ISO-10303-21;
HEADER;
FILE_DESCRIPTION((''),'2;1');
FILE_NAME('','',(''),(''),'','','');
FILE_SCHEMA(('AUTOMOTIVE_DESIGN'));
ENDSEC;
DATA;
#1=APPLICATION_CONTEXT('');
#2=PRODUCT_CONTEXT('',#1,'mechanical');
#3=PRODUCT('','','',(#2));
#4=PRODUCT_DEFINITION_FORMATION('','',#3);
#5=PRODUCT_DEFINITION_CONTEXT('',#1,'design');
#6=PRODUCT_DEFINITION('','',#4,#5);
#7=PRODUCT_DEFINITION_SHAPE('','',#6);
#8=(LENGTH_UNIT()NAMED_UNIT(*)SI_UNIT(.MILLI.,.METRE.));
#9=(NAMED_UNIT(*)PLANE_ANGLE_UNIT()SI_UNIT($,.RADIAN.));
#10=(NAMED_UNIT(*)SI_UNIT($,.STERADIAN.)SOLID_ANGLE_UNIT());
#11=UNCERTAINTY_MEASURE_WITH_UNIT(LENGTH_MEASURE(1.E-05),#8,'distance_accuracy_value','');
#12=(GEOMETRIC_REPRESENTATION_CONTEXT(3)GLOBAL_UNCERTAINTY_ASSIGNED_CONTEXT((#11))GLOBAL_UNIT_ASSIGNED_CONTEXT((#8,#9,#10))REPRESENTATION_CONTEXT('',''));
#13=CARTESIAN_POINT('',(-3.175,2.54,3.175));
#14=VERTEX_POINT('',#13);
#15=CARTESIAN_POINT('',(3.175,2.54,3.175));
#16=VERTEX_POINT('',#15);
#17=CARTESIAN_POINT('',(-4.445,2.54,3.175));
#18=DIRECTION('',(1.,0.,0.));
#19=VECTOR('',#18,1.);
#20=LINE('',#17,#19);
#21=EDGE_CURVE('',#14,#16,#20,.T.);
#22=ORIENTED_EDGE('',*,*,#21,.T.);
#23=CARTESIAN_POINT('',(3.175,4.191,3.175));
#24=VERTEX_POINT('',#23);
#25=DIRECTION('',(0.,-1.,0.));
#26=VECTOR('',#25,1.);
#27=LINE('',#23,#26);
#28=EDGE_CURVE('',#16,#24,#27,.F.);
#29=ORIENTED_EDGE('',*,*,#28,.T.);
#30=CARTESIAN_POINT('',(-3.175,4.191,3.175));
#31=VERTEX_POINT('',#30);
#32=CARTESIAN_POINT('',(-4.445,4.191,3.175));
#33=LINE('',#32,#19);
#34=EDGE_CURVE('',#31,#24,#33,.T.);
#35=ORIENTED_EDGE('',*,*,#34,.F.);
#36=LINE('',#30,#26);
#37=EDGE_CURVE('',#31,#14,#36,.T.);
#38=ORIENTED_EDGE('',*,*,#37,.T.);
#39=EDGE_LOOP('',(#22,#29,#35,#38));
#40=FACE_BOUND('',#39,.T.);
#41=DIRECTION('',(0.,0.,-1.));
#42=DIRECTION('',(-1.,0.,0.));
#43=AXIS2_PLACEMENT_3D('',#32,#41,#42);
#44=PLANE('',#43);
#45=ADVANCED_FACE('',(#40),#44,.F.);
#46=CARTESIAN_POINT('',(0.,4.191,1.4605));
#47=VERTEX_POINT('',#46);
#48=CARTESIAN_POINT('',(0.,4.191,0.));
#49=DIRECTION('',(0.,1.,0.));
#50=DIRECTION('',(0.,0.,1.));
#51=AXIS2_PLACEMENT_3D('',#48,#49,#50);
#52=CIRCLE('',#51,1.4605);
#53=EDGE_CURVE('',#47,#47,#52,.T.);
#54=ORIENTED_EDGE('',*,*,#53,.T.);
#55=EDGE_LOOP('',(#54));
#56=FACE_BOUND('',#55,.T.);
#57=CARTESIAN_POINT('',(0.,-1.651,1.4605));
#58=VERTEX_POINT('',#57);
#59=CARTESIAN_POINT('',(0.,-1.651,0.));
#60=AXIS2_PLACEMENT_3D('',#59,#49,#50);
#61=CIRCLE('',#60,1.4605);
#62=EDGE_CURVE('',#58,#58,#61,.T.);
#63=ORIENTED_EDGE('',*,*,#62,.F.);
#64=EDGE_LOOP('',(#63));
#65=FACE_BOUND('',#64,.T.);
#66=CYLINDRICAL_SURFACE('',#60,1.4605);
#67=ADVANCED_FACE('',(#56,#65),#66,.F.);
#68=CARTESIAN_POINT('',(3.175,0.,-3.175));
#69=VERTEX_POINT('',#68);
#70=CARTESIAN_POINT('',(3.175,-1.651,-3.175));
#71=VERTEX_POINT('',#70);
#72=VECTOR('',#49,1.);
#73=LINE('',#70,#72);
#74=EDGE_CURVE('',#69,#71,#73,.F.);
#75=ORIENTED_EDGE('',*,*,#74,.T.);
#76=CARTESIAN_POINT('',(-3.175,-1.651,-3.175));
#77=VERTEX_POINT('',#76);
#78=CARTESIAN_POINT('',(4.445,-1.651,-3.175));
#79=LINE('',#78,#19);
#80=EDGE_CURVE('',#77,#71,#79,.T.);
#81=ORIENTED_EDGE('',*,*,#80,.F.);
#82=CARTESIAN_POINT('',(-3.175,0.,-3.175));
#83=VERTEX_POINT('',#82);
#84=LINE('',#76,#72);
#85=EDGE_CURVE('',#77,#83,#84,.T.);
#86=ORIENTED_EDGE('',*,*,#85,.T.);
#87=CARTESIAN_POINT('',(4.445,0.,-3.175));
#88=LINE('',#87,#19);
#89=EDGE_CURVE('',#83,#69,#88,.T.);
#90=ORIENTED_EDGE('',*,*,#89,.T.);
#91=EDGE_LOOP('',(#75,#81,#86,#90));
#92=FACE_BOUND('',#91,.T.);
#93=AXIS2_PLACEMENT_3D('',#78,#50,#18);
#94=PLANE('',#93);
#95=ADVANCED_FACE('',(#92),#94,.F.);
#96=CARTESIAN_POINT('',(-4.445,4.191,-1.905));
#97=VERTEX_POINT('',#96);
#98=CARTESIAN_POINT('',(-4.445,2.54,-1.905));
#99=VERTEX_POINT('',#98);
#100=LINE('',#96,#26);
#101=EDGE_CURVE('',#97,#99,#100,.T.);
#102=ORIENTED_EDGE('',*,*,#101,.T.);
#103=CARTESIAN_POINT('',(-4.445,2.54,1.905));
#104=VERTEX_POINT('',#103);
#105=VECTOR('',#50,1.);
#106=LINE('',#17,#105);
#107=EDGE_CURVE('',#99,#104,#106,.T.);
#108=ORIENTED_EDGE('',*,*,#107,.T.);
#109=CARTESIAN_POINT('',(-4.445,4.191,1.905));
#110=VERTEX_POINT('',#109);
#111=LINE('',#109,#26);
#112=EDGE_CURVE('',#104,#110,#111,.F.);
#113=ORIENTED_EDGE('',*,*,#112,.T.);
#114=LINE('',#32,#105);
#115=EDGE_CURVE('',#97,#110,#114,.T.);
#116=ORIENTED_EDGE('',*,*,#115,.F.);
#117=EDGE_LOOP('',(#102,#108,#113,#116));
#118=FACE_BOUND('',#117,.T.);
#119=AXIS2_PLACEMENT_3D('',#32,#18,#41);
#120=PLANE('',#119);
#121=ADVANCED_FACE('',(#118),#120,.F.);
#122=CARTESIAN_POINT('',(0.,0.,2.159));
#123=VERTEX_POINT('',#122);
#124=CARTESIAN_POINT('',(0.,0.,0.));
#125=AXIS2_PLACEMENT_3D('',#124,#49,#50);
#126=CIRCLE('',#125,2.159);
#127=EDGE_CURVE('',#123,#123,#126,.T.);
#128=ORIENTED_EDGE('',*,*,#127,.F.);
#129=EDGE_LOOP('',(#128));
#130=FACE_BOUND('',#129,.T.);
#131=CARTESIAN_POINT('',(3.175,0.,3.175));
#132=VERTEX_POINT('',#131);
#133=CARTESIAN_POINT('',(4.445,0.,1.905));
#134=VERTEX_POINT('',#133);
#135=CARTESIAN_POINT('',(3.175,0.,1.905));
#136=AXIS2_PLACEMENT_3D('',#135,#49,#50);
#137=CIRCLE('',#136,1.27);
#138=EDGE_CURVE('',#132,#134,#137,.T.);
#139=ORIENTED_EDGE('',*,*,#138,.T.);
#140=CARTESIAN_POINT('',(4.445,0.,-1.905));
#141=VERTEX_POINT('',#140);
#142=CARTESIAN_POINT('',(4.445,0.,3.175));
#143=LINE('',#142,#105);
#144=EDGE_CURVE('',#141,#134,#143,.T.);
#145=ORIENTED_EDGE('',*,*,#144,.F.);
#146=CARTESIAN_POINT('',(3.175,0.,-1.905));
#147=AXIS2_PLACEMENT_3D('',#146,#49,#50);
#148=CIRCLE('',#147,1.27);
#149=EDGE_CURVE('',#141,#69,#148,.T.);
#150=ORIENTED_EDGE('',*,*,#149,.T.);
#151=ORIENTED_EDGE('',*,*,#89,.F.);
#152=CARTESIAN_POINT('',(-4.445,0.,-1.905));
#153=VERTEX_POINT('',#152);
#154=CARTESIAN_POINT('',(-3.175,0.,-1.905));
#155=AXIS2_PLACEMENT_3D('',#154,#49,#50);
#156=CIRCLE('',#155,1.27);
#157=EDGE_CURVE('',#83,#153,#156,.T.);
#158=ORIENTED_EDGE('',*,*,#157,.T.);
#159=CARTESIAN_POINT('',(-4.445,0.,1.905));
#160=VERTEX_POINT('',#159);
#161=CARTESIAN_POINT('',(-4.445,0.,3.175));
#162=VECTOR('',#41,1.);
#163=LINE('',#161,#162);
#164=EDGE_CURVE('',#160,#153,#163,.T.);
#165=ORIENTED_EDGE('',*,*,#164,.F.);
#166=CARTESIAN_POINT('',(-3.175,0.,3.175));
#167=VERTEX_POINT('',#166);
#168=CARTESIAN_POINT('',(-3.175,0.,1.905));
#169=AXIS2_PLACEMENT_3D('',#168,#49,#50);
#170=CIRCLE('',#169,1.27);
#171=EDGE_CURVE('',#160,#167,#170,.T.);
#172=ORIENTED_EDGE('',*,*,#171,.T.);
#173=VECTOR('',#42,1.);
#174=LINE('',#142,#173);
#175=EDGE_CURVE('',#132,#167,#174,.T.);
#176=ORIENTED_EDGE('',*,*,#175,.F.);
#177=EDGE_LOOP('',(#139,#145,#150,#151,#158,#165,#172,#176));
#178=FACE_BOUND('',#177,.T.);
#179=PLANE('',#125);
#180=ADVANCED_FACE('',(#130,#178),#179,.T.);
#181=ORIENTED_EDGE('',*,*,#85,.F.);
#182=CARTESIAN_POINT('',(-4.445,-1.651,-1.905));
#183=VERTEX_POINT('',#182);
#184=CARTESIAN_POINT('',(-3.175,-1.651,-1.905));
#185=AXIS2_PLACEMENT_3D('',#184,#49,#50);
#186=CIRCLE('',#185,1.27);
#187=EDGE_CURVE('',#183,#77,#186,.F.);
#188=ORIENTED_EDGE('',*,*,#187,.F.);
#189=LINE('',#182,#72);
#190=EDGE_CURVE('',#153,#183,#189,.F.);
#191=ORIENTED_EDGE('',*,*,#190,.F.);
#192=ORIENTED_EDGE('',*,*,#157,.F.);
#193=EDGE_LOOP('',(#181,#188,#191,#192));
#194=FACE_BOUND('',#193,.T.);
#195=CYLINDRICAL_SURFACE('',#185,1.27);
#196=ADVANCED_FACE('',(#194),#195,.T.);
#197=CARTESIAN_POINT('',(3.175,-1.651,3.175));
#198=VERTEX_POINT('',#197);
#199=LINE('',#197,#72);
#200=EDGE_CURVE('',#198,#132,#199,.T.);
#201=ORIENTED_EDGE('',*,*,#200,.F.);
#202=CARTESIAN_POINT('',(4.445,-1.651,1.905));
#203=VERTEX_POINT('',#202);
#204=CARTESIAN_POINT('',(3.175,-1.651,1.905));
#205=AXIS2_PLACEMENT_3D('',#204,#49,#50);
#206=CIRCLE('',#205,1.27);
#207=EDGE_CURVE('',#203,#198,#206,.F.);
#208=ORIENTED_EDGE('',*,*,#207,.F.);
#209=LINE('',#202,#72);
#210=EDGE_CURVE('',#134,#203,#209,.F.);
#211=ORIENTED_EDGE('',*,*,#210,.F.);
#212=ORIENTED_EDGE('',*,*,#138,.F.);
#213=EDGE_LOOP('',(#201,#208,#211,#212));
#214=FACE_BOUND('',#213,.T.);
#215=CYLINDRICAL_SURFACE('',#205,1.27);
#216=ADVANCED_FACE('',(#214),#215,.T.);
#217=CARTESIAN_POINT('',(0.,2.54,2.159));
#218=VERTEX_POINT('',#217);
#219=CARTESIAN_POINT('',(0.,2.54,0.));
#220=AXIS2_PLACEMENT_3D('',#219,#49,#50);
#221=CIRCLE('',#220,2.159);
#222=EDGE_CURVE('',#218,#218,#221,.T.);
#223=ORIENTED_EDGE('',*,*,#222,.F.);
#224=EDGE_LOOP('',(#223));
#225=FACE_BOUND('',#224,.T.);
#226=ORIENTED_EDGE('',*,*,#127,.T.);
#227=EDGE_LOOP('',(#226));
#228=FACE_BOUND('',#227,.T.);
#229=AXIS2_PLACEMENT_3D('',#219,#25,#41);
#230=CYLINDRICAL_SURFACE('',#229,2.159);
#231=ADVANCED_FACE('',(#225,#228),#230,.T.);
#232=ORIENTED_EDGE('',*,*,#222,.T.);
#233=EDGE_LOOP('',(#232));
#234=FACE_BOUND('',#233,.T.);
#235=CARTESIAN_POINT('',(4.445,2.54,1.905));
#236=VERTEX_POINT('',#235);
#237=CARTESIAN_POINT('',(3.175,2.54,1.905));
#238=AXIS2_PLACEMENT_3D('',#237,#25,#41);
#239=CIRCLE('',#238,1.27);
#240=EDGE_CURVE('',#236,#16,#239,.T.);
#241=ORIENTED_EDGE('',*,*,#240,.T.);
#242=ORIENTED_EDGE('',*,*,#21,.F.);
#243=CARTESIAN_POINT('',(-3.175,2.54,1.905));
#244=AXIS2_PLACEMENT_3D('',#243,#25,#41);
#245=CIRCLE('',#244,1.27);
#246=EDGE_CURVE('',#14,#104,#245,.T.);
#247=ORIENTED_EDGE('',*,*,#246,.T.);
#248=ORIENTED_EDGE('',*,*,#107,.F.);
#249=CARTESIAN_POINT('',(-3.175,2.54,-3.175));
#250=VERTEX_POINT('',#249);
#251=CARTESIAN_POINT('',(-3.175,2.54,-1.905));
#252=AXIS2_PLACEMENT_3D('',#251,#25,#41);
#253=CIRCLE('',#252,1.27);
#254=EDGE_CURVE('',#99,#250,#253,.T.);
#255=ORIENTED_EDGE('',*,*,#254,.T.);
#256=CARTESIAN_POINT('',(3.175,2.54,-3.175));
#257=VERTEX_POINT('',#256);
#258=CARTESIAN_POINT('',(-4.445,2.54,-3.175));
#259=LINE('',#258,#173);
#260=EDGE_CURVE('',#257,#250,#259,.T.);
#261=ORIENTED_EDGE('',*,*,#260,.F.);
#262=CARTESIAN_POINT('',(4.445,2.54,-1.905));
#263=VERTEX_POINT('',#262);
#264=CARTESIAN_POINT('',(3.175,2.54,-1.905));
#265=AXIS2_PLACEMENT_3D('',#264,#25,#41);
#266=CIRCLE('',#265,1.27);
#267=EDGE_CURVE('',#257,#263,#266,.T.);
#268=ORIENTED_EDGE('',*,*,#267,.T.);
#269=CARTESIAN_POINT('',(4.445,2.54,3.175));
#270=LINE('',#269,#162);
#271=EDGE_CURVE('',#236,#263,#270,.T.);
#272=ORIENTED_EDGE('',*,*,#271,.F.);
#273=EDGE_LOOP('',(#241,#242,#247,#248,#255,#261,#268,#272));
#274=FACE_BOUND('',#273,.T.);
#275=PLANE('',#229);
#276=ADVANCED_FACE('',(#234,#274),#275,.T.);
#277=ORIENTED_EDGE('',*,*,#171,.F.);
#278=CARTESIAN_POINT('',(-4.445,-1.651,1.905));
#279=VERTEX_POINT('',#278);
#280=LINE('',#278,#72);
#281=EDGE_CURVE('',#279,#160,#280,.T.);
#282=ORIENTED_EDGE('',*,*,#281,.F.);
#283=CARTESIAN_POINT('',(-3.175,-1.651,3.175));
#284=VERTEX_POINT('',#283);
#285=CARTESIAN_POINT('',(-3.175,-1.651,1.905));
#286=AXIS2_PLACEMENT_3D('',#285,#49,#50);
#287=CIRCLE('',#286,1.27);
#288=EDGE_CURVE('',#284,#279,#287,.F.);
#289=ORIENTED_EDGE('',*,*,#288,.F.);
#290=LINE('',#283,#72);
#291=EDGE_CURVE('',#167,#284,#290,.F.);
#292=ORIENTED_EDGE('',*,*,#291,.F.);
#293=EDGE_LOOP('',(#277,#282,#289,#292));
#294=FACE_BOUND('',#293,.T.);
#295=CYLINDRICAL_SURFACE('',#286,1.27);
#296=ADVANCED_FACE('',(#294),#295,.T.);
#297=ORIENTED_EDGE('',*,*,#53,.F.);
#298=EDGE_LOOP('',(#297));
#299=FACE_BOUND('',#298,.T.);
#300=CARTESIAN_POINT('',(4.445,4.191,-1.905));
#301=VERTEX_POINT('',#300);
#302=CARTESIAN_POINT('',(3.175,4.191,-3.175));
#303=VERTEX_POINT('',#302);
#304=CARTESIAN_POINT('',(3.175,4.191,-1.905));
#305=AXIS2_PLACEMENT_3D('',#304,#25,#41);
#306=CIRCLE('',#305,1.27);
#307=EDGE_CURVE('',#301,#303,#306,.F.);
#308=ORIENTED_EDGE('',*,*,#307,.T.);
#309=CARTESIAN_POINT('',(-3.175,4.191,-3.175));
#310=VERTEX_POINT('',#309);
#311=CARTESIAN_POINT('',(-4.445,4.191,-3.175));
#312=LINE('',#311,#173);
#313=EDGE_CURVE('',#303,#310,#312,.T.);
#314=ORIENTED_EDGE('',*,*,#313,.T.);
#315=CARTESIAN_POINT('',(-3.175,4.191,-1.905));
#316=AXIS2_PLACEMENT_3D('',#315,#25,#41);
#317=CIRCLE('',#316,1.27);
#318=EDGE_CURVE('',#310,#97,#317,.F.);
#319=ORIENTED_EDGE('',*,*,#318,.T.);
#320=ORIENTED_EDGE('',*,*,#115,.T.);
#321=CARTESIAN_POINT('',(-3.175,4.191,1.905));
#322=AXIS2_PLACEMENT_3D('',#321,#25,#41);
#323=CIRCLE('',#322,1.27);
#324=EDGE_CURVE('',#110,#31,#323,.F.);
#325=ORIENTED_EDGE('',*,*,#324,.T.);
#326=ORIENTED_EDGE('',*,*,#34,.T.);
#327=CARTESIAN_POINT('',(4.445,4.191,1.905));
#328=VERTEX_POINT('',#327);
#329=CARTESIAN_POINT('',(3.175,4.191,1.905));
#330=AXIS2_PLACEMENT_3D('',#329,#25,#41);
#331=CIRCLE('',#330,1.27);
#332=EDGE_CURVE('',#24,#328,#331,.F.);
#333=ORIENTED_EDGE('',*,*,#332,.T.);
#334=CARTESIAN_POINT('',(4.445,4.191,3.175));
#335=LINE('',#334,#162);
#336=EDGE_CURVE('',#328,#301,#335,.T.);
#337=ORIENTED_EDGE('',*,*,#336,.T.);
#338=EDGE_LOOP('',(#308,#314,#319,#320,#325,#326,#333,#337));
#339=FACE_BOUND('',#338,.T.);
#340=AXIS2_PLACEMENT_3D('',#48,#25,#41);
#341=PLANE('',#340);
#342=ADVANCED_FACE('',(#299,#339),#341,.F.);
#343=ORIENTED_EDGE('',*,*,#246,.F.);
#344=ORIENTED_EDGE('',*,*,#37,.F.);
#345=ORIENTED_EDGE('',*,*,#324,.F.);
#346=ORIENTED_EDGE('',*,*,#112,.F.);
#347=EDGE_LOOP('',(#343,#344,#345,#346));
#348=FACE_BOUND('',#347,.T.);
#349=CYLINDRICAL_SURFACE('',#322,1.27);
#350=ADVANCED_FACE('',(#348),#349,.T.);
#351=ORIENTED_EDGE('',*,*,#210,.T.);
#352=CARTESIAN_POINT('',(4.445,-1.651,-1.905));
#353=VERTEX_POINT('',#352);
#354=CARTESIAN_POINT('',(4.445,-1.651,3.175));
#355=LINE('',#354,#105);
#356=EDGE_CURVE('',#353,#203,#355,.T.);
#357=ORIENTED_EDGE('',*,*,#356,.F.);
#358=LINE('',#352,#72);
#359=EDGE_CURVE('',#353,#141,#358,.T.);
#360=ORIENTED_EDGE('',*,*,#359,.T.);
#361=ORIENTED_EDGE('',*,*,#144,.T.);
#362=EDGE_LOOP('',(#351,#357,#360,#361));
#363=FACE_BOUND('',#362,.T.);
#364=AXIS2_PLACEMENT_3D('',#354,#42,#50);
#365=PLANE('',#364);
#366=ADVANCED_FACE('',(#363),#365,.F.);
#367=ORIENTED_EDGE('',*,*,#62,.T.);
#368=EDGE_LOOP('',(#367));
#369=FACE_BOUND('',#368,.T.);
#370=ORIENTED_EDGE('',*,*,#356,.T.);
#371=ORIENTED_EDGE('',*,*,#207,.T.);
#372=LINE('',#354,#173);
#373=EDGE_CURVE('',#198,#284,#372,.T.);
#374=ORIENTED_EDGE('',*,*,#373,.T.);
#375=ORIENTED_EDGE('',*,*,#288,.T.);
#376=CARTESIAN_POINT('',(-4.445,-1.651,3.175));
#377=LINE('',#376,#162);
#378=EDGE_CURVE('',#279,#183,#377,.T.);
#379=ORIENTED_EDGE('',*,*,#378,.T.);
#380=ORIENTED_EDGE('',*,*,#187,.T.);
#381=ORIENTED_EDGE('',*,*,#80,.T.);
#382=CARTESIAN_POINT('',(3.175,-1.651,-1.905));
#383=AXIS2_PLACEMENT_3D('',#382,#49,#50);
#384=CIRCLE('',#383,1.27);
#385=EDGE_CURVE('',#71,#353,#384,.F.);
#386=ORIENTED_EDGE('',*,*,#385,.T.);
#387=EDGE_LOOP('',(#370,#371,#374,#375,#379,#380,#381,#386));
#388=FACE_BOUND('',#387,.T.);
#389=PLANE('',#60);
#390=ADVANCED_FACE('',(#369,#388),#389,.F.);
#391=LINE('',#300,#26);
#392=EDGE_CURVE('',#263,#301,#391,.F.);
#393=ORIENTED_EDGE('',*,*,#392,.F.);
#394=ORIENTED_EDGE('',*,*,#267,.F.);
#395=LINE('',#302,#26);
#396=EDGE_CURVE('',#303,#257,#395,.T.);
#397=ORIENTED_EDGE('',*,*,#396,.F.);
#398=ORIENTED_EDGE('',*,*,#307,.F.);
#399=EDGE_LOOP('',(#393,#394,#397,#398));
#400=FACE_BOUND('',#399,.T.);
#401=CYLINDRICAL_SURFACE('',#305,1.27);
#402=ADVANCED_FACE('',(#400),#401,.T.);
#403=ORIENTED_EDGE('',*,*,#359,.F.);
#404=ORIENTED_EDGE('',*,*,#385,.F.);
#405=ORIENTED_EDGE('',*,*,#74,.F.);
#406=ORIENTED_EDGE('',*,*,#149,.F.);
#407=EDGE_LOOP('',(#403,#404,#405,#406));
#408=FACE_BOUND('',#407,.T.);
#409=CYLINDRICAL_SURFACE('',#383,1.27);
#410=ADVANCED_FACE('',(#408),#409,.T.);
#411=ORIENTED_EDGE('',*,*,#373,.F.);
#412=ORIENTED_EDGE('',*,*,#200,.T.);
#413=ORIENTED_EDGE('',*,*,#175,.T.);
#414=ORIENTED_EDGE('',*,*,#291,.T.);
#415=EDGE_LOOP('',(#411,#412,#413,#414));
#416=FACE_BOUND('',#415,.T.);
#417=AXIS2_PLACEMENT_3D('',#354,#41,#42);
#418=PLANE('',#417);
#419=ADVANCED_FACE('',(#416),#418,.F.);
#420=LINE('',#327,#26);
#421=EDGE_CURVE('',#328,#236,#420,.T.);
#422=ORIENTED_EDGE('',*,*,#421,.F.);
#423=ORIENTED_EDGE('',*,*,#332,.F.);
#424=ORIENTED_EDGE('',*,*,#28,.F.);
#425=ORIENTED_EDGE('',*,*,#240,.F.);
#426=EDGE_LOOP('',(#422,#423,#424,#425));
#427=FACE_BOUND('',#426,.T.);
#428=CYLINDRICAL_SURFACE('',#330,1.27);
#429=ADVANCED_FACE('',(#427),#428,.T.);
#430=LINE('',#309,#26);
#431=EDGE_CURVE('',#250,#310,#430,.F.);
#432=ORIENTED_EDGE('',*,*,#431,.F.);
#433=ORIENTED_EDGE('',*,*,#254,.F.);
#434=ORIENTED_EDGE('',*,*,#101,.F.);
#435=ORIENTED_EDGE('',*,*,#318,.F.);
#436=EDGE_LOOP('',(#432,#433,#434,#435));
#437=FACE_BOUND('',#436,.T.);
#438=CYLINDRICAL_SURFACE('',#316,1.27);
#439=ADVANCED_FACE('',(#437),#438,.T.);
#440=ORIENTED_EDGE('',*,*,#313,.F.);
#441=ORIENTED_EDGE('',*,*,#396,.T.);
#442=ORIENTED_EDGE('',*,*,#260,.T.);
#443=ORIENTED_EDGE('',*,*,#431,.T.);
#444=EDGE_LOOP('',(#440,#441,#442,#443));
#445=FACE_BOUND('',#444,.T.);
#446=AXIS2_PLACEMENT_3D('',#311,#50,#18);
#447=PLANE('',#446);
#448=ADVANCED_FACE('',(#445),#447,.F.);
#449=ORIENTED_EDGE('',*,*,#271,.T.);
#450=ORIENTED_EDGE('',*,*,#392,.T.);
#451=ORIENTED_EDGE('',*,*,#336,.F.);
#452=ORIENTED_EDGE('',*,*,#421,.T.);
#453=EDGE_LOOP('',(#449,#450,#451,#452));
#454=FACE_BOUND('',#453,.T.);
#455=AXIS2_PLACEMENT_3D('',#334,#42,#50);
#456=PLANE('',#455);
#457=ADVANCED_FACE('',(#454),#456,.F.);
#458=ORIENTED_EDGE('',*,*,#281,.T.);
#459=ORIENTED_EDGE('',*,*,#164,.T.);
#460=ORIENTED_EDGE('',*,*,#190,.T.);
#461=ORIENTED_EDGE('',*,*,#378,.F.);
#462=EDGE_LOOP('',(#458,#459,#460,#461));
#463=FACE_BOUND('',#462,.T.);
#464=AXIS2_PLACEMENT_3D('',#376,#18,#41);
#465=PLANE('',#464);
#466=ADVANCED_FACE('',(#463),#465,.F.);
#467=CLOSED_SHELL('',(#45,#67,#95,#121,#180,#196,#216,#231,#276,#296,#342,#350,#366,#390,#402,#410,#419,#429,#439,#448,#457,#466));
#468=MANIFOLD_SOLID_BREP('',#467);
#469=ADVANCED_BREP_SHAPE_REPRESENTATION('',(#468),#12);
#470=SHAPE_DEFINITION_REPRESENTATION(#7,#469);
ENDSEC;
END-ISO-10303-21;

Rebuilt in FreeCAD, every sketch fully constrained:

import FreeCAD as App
import Part
import Sketcher
from FreeCAD import Vector
Q = App.Units.Quantity


def edges_at(feature, points):
    """Names of the edges that pass closest to the given points."""
    edges = feature.Shape.Edges
    near = lambda p: min(range(len(edges)), key=lambda i: edges[i].distToShape(Part.Vertex(*p))[0])
    return sorted({f"Edge{near(p) + 1}" for p in points})


def add_polygon(sketch, points):
    """Adds a closed chain of lines whose ends are joined by coincident constraints."""
    first, n = sketch.GeometryCount, len(points)
    for a, b in zip(points, points[1:] + points[:1]):
        sketch.addGeometry(Part.LineSegment(App.Vector(*a, 0), App.Vector(*b, 0)), False)
    for i in range(n):
        sketch.addConstraint(Sketcher.Constraint("Coincident", first + i, 2, first + (i + 1) % n, 1))

doc = App.newDocument("Part")
body = doc.addObject("PartDesign::Body", "Body")

sketch1 = doc.addObject("Sketcher::SketchObject", "Sketch")
body.addObject(sketch1)
sketch1.AttachmentSupport = (doc.XZ_Plane, [""])
sketch1.MapMode = "FlatFace"
sketch1.addGeometry(Part.Circle(Vector(0, 0, 0), Vector(0, 0, 1), 2.159), False)
sketch1.addConstraint([
    Sketcher.Constraint("Coincident", 0, 3, -1, 1),
    Sketcher.Constraint("Diameter", 0, Q("0.17 in")),
])
pad1 = doc.addObject("PartDesign::Pad", "Pad")
body.addObject(pad1)
pad1.Profile = sketch1
pad1.Length = Q("0.1 in")
pad1.Reversed = True

sketch2 = doc.addObject("Sketcher::SketchObject", "Sketch001")
body.addObject(sketch2)
sketch2.AttachmentSupport = (doc.XZ_Plane, [""])
sketch2.MapMode = "FlatFace"
sketch2.AttachmentOffset = App.Placement(Vector(0, 0, -0.1 * 25.4), App.Rotation())
add_polygon(sketch2, [(-4.445, -3.175), (-4.445, 3.175), (4.445, 3.175), (4.445, -3.175)])
sketch2.addConstraint([
    Sketcher.Constraint("Vertical", 0),
    Sketcher.Constraint("Horizontal", 1),
    Sketcher.Constraint("Vertical", 2),
    Sketcher.Constraint("Horizontal", 3),
    Sketcher.Constraint("Symmetric", 0, 2, 2, 2, -1, 1),
    Sketcher.Constraint("DistanceX", 1, 1, 1, 2, Q("0.35 in")),
    Sketcher.Constraint("DistanceY", 0, 1, 0, 2, Q("0.25 in")),
])
pad2 = doc.addObject("PartDesign::Pad", "Pad001")
body.addObject(pad2)
pad2.Profile = sketch2
pad2.Length = Q("0.065 in")
pad2.Reversed = True

sketch3 = doc.addObject("Sketcher::SketchObject", "Sketch002")
body.addObject(sketch3)
sketch3.AttachmentSupport = (doc.XZ_Plane, [""])
sketch3.MapMode = "FlatFace"
add_polygon(sketch3, [(4.445, -3.175), (4.445, 3.175), (-4.445, 3.175), (-4.445, -3.175)])
sketch3.addConstraint([
    Sketcher.Constraint("Vertical", 0),
    Sketcher.Constraint("Horizontal", 1),
    Sketcher.Constraint("Vertical", 2),
    Sketcher.Constraint("Horizontal", 3),
    Sketcher.Constraint("Symmetric", 0, 2, 2, 2, -1, 1),
    Sketcher.Constraint("DistanceX", 1, 2, 1, 1, Q("0.35 in")),
    Sketcher.Constraint("DistanceY", 0, 1, 0, 2, Q("0.25 in")),
])
pad3 = doc.addObject("PartDesign::Pad", "Pad002")
body.addObject(pad3)
pad3.Profile = sketch3
pad3.Length = Q("0.065 in")

sketch4 = doc.addObject("Sketcher::SketchObject", "Sketch003")
body.addObject(sketch4)
sketch4.AttachmentSupport = (doc.XZ_Plane, [""])
sketch4.MapMode = "FlatFace"
sketch4.AttachmentOffset = App.Placement(Vector(0, 0, -0.165 * 25.4), App.Rotation())
sketch4.addGeometry(Part.Circle(Vector(0, 0, 0), Vector(0, 0, 1), 1.4605), False)
sketch4.addConstraint([
    Sketcher.Constraint("Coincident", 0, 3, -1, 1),
    Sketcher.Constraint("Diameter", 0, Q("0.115 in")),
])
pocket1 = doc.addObject("PartDesign::Pocket", "Pocket")
body.addObject(pocket1)
pocket1.Profile = sketch4
pocket1.Type = "ThroughAll"
pocket1.Reversed = True
doc.recompute()

fillet = doc.addObject("PartDesign::Fillet", "Fillet")
body.addObject(fillet)
fillet.Base = (pocket1, edges_at(pocket1, [
    (-4.445, -0.826, 3.175),
    (-4.445, -0.826, -3.175),
    (4.445, -0.826, -3.175),
    (4.445, -0.826, 3.175),
    (4.445, 3.365, 3.175),
    (4.445, 3.365, -3.175),
    (-4.445, 3.365, -3.175),
    (-4.445, 3.365, 3.175),
]))
fillet.Radius = Q("0.05 in")

doc.recompute()
